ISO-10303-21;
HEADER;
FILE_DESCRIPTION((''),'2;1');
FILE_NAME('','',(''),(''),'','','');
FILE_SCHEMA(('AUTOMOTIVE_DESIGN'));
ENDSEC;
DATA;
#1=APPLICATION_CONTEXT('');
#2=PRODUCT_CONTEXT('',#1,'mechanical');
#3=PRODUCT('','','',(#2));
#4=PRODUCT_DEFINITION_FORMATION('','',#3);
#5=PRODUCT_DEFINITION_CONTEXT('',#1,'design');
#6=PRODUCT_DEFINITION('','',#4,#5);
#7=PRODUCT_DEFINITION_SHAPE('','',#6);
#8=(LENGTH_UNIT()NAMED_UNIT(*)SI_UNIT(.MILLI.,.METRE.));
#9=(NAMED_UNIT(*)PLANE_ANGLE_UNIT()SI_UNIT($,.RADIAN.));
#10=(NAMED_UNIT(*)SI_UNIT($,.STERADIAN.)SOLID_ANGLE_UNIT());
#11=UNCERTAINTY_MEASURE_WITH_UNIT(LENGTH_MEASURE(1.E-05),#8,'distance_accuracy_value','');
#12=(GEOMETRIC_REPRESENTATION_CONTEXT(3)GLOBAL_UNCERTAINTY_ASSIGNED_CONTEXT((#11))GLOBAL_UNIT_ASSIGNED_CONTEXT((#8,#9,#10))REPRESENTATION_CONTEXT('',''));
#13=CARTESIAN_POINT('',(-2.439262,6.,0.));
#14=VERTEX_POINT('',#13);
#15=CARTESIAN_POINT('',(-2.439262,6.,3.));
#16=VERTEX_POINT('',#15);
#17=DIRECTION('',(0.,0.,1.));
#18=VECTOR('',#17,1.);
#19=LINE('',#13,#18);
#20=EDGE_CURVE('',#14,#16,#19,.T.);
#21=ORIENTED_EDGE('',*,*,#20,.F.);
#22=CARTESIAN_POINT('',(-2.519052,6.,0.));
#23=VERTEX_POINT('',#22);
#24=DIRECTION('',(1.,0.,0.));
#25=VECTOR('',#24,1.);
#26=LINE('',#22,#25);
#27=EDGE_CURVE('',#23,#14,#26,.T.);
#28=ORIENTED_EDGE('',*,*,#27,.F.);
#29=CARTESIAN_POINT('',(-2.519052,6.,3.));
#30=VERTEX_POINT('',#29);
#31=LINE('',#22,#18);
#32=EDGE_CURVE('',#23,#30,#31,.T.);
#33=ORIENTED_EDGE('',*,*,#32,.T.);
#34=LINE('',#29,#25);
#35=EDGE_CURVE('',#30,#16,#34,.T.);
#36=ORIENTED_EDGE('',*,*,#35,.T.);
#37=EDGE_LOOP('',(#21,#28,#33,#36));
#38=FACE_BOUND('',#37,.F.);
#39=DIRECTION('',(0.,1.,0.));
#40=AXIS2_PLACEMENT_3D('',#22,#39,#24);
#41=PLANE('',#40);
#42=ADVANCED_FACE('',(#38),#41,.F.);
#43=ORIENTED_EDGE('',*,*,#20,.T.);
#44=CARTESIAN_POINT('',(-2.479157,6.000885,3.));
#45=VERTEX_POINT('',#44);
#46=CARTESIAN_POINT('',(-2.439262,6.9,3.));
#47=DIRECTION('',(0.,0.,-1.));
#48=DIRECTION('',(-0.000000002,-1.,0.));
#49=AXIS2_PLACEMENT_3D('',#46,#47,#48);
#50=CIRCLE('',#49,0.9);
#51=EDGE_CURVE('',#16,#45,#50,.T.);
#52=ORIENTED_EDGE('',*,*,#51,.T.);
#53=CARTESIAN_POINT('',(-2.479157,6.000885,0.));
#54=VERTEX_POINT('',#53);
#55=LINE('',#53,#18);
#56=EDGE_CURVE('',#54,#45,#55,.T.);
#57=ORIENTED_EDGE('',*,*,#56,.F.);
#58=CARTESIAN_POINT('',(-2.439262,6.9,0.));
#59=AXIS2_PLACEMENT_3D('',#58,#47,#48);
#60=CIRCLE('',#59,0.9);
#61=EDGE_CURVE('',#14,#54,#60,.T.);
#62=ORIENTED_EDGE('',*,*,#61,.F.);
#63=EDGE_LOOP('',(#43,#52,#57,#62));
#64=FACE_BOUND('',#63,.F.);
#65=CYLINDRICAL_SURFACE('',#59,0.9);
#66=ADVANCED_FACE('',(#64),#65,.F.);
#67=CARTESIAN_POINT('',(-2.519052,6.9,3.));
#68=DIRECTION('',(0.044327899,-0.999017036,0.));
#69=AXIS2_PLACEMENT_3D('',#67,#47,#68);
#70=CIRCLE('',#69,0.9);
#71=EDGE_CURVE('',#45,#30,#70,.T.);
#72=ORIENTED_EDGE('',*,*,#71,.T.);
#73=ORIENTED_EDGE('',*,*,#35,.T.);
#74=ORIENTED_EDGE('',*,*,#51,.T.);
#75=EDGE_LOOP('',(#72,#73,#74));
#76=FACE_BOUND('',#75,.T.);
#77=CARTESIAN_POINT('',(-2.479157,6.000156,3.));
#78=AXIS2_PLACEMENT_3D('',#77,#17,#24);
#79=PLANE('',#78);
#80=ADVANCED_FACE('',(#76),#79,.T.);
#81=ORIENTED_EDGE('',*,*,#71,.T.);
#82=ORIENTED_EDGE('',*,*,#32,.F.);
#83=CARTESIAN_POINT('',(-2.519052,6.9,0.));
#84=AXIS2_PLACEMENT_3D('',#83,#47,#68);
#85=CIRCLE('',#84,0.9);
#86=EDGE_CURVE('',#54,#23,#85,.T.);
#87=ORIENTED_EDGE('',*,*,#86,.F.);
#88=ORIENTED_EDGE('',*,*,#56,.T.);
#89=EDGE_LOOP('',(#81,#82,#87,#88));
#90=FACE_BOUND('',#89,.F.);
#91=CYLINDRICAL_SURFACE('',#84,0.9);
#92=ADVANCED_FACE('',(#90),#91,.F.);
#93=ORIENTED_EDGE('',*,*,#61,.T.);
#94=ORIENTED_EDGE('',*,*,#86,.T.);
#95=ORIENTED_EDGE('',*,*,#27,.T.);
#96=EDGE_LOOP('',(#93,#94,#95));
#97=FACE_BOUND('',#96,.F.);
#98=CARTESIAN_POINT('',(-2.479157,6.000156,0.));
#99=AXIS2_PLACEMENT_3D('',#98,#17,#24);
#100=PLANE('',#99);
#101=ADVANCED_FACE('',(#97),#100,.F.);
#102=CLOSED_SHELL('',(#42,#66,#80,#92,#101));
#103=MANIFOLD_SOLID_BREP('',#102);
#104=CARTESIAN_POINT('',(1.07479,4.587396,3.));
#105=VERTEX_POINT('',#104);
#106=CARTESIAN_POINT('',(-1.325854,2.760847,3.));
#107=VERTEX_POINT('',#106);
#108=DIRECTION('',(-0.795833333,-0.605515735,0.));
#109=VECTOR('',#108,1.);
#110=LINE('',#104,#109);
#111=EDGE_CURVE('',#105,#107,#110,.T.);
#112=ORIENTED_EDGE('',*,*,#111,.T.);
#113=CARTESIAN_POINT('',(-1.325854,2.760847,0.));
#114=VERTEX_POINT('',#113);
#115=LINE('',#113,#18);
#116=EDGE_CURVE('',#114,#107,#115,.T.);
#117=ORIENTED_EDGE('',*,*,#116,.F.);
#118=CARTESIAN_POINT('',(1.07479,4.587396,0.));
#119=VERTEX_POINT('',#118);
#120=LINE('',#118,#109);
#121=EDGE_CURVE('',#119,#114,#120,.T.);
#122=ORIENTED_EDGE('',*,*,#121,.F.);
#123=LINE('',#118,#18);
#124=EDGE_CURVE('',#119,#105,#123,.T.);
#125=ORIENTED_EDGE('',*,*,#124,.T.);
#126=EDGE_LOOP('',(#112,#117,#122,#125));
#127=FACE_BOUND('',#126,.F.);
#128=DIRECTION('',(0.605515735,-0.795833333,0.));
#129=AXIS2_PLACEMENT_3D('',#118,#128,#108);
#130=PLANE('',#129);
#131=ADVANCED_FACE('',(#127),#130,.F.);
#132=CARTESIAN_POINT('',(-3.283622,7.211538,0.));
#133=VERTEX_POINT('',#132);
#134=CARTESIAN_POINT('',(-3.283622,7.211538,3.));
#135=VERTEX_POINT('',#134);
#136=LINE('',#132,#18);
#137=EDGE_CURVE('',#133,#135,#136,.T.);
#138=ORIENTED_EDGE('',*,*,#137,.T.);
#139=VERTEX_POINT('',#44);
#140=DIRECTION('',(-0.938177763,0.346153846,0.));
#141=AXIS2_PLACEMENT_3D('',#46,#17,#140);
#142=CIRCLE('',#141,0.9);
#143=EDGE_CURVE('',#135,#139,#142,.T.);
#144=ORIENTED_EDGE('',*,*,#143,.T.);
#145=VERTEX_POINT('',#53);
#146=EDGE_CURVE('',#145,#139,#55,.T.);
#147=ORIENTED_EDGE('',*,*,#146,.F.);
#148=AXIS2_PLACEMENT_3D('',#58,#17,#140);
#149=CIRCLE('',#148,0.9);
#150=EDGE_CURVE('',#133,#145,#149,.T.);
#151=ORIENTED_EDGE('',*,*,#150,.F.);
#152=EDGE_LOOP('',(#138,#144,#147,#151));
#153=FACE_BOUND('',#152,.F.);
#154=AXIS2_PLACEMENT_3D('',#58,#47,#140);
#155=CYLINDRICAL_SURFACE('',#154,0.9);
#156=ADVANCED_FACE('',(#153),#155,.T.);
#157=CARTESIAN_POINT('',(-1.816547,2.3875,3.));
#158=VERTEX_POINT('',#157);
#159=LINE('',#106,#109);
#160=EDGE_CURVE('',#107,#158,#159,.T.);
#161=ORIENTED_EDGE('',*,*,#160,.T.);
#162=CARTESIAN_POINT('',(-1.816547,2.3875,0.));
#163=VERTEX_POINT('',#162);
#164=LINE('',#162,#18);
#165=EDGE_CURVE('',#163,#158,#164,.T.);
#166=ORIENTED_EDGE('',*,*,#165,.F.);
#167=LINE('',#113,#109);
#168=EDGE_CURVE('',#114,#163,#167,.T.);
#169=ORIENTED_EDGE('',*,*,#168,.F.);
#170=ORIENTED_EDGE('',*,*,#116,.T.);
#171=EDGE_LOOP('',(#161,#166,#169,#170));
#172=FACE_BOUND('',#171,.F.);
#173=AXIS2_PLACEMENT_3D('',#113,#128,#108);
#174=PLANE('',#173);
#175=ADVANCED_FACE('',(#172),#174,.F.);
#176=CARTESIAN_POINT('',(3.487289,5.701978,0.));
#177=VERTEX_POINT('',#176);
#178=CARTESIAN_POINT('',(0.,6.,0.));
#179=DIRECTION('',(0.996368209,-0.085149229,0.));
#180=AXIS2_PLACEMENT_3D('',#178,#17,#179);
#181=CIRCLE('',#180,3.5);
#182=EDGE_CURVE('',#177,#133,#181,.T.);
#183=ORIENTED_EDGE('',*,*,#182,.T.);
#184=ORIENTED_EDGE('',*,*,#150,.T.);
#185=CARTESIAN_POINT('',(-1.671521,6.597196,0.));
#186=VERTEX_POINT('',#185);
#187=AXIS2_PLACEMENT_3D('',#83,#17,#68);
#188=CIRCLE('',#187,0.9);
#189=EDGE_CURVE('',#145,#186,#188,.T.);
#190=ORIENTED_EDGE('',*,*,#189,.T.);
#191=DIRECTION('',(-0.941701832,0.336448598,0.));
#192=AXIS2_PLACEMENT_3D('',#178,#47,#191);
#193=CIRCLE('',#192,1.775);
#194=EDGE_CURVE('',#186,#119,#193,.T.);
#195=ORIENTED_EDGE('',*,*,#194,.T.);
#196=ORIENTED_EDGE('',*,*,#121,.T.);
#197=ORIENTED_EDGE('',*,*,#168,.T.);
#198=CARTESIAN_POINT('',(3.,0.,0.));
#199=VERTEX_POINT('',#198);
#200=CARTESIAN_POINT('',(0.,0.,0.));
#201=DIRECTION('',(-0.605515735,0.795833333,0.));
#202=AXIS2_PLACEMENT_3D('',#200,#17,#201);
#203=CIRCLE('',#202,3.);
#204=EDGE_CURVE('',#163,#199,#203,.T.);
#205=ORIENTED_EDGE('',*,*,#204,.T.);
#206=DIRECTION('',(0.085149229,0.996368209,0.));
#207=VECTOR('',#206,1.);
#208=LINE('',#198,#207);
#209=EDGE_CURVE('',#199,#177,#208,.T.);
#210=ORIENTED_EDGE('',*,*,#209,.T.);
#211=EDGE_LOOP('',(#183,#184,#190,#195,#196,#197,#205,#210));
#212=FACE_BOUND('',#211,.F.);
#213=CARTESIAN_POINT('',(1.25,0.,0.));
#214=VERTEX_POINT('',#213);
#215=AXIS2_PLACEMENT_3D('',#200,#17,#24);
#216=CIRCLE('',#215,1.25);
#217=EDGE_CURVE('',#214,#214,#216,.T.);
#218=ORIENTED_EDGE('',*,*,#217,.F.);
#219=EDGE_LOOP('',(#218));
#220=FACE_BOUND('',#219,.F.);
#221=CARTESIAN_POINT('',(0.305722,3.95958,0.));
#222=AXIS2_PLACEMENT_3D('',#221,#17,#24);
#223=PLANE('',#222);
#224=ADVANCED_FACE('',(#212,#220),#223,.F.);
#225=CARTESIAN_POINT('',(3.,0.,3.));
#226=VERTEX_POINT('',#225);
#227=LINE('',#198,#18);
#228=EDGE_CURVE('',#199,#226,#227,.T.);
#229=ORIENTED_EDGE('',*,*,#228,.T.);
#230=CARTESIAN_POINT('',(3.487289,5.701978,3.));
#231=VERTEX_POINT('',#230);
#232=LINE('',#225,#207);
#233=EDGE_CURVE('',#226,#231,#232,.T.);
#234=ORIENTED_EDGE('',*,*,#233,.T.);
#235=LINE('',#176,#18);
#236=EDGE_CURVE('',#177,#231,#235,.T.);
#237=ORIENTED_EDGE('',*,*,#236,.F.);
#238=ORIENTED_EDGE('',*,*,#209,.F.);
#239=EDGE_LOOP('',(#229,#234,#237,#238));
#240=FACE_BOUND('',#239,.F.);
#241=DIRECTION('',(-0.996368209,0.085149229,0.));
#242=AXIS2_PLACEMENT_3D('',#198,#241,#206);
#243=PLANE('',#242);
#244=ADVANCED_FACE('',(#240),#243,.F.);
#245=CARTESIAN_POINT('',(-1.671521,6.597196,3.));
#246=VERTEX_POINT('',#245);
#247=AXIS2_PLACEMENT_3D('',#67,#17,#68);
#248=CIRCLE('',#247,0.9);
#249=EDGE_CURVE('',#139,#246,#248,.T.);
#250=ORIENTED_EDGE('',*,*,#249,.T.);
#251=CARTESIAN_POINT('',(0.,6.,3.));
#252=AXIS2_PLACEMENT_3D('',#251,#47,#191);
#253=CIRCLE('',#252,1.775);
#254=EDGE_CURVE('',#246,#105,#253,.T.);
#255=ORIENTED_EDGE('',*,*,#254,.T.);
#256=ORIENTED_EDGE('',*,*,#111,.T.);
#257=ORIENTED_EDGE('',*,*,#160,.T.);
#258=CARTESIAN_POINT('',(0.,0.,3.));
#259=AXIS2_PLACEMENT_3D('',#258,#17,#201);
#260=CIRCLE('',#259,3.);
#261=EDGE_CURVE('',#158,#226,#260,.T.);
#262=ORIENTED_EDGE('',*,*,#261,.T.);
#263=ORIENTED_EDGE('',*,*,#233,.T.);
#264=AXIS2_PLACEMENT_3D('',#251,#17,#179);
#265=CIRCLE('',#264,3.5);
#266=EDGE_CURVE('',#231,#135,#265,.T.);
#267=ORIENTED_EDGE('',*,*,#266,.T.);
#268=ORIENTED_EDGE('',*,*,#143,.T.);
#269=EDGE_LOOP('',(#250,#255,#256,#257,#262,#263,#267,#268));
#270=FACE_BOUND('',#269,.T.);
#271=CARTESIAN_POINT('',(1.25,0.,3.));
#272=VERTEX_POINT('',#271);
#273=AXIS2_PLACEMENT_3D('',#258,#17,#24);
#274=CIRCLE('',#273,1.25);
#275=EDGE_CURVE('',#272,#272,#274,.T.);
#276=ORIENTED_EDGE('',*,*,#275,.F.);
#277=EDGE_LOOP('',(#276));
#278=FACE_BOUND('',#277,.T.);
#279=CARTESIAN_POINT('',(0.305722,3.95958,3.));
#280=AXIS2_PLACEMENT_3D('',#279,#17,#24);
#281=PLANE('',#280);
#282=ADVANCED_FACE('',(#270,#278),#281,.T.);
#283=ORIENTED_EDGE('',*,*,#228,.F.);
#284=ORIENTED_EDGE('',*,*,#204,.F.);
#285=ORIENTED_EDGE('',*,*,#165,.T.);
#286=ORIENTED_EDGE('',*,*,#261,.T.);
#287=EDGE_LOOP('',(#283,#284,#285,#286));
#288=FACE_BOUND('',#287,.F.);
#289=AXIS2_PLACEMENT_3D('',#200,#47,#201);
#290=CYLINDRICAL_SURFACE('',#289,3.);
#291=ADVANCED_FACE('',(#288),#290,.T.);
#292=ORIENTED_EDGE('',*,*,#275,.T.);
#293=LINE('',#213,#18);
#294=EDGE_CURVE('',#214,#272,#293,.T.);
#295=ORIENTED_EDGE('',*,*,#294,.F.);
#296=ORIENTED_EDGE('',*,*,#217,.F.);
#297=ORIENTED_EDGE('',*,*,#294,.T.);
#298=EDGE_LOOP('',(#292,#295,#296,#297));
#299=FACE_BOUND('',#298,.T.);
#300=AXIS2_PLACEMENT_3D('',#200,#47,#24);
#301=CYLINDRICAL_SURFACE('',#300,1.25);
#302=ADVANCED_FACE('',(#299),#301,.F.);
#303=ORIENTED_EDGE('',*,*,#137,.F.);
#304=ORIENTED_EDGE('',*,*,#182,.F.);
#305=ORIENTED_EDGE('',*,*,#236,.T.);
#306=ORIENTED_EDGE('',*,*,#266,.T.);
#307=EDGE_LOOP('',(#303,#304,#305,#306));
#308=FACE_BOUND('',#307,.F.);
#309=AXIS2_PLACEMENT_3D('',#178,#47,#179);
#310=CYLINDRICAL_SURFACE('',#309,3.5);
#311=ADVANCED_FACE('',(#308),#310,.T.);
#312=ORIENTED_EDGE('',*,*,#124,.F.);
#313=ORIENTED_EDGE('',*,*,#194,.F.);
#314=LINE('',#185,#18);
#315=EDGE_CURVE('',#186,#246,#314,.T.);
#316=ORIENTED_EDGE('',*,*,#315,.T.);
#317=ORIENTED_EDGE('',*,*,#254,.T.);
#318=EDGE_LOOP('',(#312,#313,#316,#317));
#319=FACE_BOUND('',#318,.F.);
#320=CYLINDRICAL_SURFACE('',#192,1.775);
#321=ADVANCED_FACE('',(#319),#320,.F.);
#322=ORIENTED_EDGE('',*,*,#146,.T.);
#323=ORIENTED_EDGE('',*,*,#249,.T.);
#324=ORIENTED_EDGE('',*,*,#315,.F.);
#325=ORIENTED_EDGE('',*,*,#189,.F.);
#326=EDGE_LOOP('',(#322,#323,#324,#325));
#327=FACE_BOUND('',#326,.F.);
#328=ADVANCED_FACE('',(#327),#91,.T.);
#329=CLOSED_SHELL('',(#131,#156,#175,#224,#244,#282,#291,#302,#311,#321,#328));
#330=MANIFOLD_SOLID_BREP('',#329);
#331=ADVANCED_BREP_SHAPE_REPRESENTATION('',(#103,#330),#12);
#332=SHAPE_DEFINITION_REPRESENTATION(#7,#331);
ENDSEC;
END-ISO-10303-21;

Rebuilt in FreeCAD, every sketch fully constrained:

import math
import FreeCAD as App
import Part
import Sketcher

V = App.Vector

doc = App.newDocument("Part")
body = doc.addObject("PartDesign::Body", "Body")

sketch1 = body.newObject("Sketcher::SketchObject", "Sketch")
sketch1.AttachmentSupport = (doc.getObject("XY_Plane"), [""])
sketch1.MapMode = "FlatFace"
sketch1.addGeometry(Part.LineSegment(V(-1.325854, 2.760847, 0), V(-1.816547, 2.3875, 0)), False)
sketch1.addGeometry(Part.ArcOfCircle(Part.Circle(V(0, 0, 0), V(0, 0, 1), 3), math.radians(127.265963), math.radians(360)), False)
sketch1.addGeometry(Part.LineSegment(V(3, 0, 0), V(3.487289, 5.701978, 0)), False)
sketch1.addGeometry(Part.ArcOfCircle(Part.Circle(V(0, 6, 0), V(0, 0, 1), 3.5), math.radians(-4.884606), math.radians(159.747753)), False)
sketch1.addGeometry(Part.ArcOfCircle(Part.Circle(V(-2.439262, 6.9, 0), V(0, 0, 1), 0.9), math.radians(159.747753), math.radians(267.459366)), False)
sketch1.addGeometry(Part.ArcOfCircle(Part.Circle(V(-2.519052, 6.9, 0), V(0, 0, 1), 0.9), math.radians(-87.459366), math.radians(-19.660651)), False)
sketch1.addGeometry(Part.ArcOfCircle(Part.Circle(V(0, 6, 0), V(0, 0, 1), 1.775), math.radians(-52.734037), math.radians(160.339349)), False)
sketch1.addGeometry(Part.LineSegment(V(1.07479, 4.587396, 0), V(-1.325854, 2.760847, 0)), False)
sketch1.addGeometry(Part.Circle(V(0, 0, 0), V(0, 0, 1), 1.25), False)
sketch1.addConstraint(Sketcher.Constraint("Tangent", 0, 2, 1, 1))
sketch1.addConstraint(Sketcher.Constraint("Coincident", 1, 2, 2, 1))
sketch1.addConstraint(Sketcher.Constraint("Tangent", 2, 2, 3, 1))
sketch1.addConstraint(Sketcher.Constraint("Tangent", 3, 2, 4, 1))
sketch1.addConstraint(Sketcher.Constraint("Coincident", 4, 2, 5, 1))
sketch1.addConstraint(Sketcher.Constraint("Tangent", 5, 2, 6, 2))
sketch1.addConstraint(Sketcher.Constraint("Tangent", 6, 1, 7, 1))
sketch1.addConstraint(Sketcher.Constraint("Coincident", 7, 2, 0, 1))
sketch1.addConstraint(Sketcher.Constraint("Coincident", 1, 3, -1, 1))
sketch1.addConstraint(Sketcher.Constraint("Coincident", 8, 3, -1, 1))
sketch1.addConstraint(Sketcher.Constraint("Coincident", 6, 3, 3, 3))
sketch1.addConstraint(Sketcher.Constraint("Equal", 4, 5))
sketch1.addConstraint(Sketcher.Constraint("PointOnObject", 3, 3, -2))
sketch1.addConstraint(Sketcher.Constraint("PointOnObject", 1, 2, -1))
sketch1.addConstraint(Sketcher.Constraint("Parallel", 0, 7))
sketch1.addConstraint(Sketcher.Constraint("Horizontal", 4, 3, 5, 3))
sketch1.addConstraint(Sketcher.Constraint("Radius", 1, 3.0))
sketch1.addConstraint(Sketcher.Constraint("Diameter", 8, 2.5))
sketch1.addConstraint(Sketcher.Constraint("Radius", 3, 3.5))
sketch1.addConstraint(Sketcher.Constraint("Radius", 4, 0.9))
sketch1.addConstraint(Sketcher.Constraint("DistanceY", -1, 1, 3, 3, 6.0))
sketch1.addConstraint(Sketcher.Constraint("Radius", 6, 1.775))
sketch1.addConstraint(Sketcher.Constraint("DistanceY", -1, 1, 4, 3, 6.9))
sketch1.addConstraint(Sketcher.Constraint("DistanceY", 7, 2, 6, 1, 1.826549))
pad1 = body.newObject("PartDesign::Pad", "Pad")
pad1.Profile = sketch1
pad1.Length = 3
body2 = doc.addObject("PartDesign::Body", "Body001")

sketch2 = body2.newObject("Sketcher::SketchObject", "Sketch001")
sketch2.AttachmentSupport = (doc.getObject("XY_Plane001"), [""])
sketch2.MapMode = "FlatFace"
sketch2.addGeometry(Part.ArcOfCircle(Part.Circle(V(-2.439262, 6.9, 0), V(0, 0, 1), 0.9), math.radians(-92.540634), math.radians(-90)), False)
sketch2.addGeometry(Part.ArcOfCircle(Part.Circle(V(-2.519052, 6.9, 0), V(0, 0, 1), 0.9), math.radians(-90), math.radians(-87.459366)), False)
sketch2.addGeometry(Part.LineSegment(V(-2.519052, 6, 0), V(-2.439262, 6, 0)), False)
sketch2.addConstraint(Sketcher.Constraint("Coincident", 0, 1, 1, 2))
sketch2.addConstraint(Sketcher.Constraint("Tangent", 1, 1, 2, 1))
sketch2.addConstraint(Sketcher.Constraint("Tangent", 2, 2, 0, 2))
sketch2.addConstraint(Sketcher.Constraint("Horizontal", 2))
sketch2.addConstraint(Sketcher.Constraint("Equal", 0, 1))
sketch2.addConstraint(Sketcher.Constraint("Radius", 0, 0.9))
sketch2.addConstraint(Sketcher.Constraint("DistanceY", -1, 1, 1, 1, 6.0))
sketch2.addConstraint(Sketcher.Constraint("DistanceX", 2, 1, 2, 2, 0.07979))
sketch2.addConstraint(Sketcher.Constraint("DistanceX", 0, 3, -1, 1, 2.439262))
pad2 = body2.newObject("PartDesign::Pad", "Pad001")
pad2.Profile = sketch2
pad2.Length = 3

doc.recompute()
